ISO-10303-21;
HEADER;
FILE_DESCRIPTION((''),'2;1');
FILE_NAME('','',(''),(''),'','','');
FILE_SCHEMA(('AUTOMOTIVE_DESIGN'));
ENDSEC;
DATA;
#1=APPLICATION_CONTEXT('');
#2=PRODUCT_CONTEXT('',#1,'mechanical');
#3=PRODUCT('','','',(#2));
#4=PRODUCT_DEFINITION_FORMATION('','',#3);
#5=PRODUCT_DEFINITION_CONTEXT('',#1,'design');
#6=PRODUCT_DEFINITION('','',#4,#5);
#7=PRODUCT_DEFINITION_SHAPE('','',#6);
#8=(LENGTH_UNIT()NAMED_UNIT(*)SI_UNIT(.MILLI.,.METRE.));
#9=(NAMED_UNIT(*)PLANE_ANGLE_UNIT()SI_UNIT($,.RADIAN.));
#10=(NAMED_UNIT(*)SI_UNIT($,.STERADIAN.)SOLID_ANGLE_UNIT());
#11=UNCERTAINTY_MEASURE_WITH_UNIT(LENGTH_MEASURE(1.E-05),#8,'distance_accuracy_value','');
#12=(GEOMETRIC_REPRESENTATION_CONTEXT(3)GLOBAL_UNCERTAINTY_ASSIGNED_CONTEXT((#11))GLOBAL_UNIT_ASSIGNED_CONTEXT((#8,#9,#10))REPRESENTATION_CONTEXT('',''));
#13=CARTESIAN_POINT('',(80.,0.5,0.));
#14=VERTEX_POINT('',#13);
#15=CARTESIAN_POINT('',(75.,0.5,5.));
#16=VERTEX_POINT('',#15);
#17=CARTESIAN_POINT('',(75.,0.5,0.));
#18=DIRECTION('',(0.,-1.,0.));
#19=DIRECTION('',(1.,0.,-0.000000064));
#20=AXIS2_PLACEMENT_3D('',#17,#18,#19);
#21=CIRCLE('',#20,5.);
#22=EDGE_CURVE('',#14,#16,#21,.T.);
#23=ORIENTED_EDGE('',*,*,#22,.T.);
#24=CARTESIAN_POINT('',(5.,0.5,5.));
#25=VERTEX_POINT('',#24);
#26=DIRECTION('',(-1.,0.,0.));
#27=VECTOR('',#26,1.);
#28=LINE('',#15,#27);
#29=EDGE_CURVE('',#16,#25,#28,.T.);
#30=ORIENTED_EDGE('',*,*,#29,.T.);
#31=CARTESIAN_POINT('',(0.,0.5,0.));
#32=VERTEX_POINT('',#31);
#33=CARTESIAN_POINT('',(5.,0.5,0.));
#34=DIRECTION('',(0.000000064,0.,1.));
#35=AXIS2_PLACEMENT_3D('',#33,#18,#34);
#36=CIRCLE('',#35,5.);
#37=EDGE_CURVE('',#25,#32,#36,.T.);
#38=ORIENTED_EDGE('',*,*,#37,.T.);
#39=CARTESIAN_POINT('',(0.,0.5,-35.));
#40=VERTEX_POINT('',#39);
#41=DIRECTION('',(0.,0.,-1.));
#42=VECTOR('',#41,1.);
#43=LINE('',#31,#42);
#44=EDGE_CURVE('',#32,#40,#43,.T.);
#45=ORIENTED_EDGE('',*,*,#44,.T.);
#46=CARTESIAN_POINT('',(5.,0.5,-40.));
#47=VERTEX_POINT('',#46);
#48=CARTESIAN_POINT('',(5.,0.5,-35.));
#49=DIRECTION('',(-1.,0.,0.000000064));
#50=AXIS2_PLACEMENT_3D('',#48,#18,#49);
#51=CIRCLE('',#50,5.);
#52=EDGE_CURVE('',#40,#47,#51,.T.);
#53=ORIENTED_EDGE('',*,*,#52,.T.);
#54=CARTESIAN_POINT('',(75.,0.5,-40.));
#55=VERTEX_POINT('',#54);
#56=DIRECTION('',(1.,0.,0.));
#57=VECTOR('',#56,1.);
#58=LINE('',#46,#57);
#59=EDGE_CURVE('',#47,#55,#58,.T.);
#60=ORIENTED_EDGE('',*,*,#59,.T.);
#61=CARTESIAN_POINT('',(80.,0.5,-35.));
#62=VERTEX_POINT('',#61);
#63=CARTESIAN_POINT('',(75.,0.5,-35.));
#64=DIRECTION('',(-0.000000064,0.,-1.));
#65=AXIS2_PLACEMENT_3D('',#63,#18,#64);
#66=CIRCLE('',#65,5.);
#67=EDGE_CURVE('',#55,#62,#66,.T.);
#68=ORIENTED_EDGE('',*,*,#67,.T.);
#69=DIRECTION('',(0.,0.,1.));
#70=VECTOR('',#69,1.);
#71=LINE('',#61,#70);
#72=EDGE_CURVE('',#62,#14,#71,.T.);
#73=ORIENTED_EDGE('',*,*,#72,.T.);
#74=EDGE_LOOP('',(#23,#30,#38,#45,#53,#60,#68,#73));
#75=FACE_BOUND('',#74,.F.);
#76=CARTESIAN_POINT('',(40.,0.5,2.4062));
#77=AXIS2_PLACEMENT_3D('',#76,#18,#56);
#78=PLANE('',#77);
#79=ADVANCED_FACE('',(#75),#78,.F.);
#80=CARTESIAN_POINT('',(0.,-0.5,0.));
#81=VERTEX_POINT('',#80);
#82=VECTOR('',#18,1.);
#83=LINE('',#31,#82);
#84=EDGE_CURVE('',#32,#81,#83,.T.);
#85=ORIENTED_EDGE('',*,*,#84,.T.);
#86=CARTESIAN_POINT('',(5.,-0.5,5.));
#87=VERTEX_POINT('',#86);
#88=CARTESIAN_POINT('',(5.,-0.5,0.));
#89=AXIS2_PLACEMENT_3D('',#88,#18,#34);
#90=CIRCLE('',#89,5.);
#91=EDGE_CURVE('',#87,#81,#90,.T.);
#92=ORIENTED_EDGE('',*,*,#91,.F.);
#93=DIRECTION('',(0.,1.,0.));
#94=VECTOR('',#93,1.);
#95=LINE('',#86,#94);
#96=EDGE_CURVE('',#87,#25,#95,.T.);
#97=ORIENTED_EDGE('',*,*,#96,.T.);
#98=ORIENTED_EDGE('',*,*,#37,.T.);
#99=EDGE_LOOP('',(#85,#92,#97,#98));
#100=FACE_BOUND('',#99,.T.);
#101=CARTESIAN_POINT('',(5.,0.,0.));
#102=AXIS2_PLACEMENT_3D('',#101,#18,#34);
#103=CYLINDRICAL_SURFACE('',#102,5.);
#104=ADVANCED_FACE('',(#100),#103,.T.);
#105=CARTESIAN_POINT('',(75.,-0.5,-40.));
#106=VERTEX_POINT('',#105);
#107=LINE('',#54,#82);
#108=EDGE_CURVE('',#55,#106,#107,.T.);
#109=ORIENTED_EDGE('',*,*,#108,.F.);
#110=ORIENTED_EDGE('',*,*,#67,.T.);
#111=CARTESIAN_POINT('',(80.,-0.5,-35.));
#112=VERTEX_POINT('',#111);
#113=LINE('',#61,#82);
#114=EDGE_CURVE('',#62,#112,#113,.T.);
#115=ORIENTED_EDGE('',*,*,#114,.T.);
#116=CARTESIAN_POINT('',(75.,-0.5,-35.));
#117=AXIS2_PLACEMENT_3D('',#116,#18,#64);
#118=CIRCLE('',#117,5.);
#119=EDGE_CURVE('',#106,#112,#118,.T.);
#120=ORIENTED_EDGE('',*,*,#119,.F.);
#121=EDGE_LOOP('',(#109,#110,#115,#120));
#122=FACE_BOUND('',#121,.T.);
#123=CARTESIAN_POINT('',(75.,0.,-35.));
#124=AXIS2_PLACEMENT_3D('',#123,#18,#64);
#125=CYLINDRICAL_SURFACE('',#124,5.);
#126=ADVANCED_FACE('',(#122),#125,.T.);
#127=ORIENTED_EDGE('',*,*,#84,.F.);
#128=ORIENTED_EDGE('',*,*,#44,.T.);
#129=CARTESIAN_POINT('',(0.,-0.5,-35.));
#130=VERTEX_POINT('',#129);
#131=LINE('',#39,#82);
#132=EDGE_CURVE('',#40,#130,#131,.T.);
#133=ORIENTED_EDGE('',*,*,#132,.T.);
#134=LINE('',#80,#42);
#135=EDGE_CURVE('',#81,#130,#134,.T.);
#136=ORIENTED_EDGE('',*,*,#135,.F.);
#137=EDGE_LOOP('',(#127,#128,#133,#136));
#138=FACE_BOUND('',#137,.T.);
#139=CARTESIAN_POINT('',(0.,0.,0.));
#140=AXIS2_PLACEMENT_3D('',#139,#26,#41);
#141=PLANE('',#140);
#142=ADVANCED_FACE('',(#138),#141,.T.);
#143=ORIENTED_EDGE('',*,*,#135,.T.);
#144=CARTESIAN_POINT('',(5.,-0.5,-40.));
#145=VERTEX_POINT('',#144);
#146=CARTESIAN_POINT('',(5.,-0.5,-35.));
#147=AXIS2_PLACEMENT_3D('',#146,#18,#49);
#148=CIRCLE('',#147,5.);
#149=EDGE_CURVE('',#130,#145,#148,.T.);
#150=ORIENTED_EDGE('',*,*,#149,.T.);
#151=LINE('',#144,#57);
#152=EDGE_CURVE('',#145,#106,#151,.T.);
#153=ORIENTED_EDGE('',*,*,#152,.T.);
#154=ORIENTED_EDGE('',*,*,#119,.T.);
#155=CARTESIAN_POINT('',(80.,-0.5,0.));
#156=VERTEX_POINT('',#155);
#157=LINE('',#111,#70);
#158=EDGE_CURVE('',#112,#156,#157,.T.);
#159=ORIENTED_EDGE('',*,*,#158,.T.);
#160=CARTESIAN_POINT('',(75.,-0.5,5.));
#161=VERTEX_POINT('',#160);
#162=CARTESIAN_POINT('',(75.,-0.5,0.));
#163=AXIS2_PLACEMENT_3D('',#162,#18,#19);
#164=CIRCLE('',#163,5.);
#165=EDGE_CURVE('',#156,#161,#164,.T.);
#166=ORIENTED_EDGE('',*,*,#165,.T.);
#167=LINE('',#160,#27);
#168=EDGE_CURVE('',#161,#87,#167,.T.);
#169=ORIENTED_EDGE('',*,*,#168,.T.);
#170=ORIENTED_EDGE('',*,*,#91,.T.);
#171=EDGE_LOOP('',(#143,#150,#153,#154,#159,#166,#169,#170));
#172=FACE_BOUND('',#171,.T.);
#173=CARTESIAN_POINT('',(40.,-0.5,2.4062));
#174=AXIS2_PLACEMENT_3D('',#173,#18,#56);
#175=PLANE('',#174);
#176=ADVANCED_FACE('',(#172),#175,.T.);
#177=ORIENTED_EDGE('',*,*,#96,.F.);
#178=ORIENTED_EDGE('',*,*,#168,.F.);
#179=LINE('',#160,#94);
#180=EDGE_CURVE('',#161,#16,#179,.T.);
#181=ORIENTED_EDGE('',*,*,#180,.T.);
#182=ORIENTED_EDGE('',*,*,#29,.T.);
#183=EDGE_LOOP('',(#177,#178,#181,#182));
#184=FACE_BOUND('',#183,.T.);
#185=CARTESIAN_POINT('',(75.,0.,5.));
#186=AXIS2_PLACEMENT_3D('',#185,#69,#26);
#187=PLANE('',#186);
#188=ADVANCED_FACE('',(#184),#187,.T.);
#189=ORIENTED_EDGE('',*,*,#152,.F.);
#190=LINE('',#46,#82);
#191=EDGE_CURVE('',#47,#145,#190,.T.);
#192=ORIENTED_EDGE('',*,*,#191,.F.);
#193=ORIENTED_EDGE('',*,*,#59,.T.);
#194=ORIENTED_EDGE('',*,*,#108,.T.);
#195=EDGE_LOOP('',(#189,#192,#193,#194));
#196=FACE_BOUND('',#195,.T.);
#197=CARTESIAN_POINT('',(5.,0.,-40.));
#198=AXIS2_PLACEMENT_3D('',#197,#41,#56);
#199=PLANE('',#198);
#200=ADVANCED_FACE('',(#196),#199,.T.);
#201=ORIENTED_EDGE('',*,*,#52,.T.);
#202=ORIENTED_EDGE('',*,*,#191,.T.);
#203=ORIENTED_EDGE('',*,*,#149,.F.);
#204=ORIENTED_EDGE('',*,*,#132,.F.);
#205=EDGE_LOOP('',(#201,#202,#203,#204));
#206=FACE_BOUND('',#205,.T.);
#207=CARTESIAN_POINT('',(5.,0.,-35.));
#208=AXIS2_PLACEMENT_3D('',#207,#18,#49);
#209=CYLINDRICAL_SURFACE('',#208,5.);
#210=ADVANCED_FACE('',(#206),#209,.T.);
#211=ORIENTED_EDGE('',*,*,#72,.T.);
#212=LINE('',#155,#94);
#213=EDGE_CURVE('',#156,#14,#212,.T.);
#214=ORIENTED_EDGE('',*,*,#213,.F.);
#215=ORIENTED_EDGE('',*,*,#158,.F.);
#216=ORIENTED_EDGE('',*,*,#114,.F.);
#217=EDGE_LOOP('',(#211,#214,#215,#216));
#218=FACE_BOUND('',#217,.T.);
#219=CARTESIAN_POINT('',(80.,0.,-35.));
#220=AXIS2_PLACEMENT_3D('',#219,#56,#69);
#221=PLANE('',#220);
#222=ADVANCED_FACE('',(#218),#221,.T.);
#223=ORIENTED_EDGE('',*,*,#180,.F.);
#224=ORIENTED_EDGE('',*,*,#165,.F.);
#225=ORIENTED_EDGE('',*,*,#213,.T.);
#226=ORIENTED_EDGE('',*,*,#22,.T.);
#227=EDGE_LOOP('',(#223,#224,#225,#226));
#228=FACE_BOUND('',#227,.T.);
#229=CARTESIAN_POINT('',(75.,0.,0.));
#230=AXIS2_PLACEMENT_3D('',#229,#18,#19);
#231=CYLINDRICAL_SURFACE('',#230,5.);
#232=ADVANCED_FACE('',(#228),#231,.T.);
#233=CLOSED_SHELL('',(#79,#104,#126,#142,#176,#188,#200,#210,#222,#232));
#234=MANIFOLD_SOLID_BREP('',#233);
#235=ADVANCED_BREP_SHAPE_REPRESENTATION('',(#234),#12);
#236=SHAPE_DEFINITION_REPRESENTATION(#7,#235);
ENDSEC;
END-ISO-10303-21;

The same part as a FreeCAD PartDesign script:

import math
import FreeCAD as App
import Part
import Sketcher
Q = App.Units.Quantity

doc = App.newDocument("Part")
params = doc.addObject("Spreadsheet::Sheet", "Params")
for row, (alias, value) in enumerate([
    ("sketch1_radius", "5 mm"),
    ("sketch1_width", "70 mm"),
    ("sketch1_height", "35 mm"),
    ("pad1_length", "1 mm"),
], start=1):
    params.set(f"A{row}", alias)
    params.set(f"B{row}", "=" + value)
    params.setAlias(f"B{row}", alias)

body = doc.addObject("PartDesign::Body", "Body")

sketch1 = doc.addObject("Sketcher::SketchObject", "Sketch")
body.addObject(sketch1)
sketch1.AttachmentSupport = (doc.XZ_Plane, [""])
sketch1.MapMode = "FlatFace"
sketch1.addGeometry(Part.ArcOfCircle(Part.Circle(App.Vector(5, 0, 0), App.Vector(0, 0, 1), 5), math.radians(89.999996), math.radians(180.000004)), False)
sketch1.addGeometry(Part.LineSegment(App.Vector(0, 0, 0), App.Vector(0, -35, 0)), False)
sketch1.addGeometry(Part.ArcOfCircle(Part.Circle(App.Vector(5, -35, 0), App.Vector(0, 0, 1), 5), math.radians(179.999996), math.radians(270.000004)), False)
sketch1.addGeometry(Part.LineSegment(App.Vector(5, -40, 0), App.Vector(75, -40, 0)), False)
sketch1.addGeometry(Part.ArcOfCircle(Part.Circle(App.Vector(75, -35, 0), App.Vector(0, 0, 1), 5), math.radians(-90.000004), math.radians(0.000004)), False)
sketch1.addGeometry(Part.LineSegment(App.Vector(80, -35, 0), App.Vector(80, 0, 0)), False)
sketch1.addGeometry(Part.ArcOfCircle(Part.Circle(App.Vector(75, 0, 0), App.Vector(0, 0, 1), 5), math.radians(-0.000004), math.radians(90.000004)), False)
sketch1.addGeometry(Part.LineSegment(App.Vector(75, 5, 0), App.Vector(5, 5, 0)), False)
sketch1.addConstraint(Sketcher.Constraint("Tangent", 0, 2, 1, 1))
sketch1.addConstraint(Sketcher.Constraint("Tangent", 1, 2, 2, 1))
sketch1.addConstraint(Sketcher.Constraint("Tangent", 2, 2, 3, 1))
sketch1.addConstraint(Sketcher.Constraint("Tangent", 3, 2, 4, 1))
sketch1.addConstraint(Sketcher.Constraint("Tangent", 4, 2, 5, 1))
sketch1.addConstraint(Sketcher.Constraint("Tangent", 5, 2, 6, 1))
sketch1.addConstraint(Sketcher.Constraint("Tangent", 6, 2, 7, 1))
sketch1.addConstraint(Sketcher.Constraint("Tangent", 7, 2, 0, 1))
sketch1.addConstraint(Sketcher.Constraint("Vertical", 1))
sketch1.addConstraint(Sketcher.Constraint("Horizontal", 3))
sketch1.addConstraint(Sketcher.Constraint("Vertical", 5))
sketch1.addConstraint(Sketcher.Constraint("Horizontal", 7))
sketch1.addConstraint(Sketcher.Constraint("Coincident", 0, 2, -1, 1))
sketch1.addConstraint(Sketcher.Constraint("Equal", 0, 2))
sketch1.addConstraint(Sketcher.Constraint("Equal", 2, 4))
sketch1.addConstraint(Sketcher.Constraint("Equal", 4, 6))
sketch1.addConstraint(Sketcher.Constraint("Radius", 0, Q("5 mm")))
sketch1.addConstraint(Sketcher.Constraint("DistanceX", 3, 1, 3, 2, Q("70 mm")))
sketch1.addConstraint(Sketcher.Constraint("DistanceY", 1, 2, 1, 1, Q("35 mm")))
sketch1.setExpression("Constraints[16]", "Params.sketch1_radius")
sketch1.setExpression("Constraints[17]", "Params.sketch1_width")
sketch1.setExpression("Constraints[18]", "Params.sketch1_height")
pad1 = doc.addObject("PartDesign::Pad", "Pad")
body.addObject(pad1)
pad1.Profile = sketch1
pad1.setExpression("Length", "Params.pad1_length")
pad1.Midplane = True

doc.recompute()
